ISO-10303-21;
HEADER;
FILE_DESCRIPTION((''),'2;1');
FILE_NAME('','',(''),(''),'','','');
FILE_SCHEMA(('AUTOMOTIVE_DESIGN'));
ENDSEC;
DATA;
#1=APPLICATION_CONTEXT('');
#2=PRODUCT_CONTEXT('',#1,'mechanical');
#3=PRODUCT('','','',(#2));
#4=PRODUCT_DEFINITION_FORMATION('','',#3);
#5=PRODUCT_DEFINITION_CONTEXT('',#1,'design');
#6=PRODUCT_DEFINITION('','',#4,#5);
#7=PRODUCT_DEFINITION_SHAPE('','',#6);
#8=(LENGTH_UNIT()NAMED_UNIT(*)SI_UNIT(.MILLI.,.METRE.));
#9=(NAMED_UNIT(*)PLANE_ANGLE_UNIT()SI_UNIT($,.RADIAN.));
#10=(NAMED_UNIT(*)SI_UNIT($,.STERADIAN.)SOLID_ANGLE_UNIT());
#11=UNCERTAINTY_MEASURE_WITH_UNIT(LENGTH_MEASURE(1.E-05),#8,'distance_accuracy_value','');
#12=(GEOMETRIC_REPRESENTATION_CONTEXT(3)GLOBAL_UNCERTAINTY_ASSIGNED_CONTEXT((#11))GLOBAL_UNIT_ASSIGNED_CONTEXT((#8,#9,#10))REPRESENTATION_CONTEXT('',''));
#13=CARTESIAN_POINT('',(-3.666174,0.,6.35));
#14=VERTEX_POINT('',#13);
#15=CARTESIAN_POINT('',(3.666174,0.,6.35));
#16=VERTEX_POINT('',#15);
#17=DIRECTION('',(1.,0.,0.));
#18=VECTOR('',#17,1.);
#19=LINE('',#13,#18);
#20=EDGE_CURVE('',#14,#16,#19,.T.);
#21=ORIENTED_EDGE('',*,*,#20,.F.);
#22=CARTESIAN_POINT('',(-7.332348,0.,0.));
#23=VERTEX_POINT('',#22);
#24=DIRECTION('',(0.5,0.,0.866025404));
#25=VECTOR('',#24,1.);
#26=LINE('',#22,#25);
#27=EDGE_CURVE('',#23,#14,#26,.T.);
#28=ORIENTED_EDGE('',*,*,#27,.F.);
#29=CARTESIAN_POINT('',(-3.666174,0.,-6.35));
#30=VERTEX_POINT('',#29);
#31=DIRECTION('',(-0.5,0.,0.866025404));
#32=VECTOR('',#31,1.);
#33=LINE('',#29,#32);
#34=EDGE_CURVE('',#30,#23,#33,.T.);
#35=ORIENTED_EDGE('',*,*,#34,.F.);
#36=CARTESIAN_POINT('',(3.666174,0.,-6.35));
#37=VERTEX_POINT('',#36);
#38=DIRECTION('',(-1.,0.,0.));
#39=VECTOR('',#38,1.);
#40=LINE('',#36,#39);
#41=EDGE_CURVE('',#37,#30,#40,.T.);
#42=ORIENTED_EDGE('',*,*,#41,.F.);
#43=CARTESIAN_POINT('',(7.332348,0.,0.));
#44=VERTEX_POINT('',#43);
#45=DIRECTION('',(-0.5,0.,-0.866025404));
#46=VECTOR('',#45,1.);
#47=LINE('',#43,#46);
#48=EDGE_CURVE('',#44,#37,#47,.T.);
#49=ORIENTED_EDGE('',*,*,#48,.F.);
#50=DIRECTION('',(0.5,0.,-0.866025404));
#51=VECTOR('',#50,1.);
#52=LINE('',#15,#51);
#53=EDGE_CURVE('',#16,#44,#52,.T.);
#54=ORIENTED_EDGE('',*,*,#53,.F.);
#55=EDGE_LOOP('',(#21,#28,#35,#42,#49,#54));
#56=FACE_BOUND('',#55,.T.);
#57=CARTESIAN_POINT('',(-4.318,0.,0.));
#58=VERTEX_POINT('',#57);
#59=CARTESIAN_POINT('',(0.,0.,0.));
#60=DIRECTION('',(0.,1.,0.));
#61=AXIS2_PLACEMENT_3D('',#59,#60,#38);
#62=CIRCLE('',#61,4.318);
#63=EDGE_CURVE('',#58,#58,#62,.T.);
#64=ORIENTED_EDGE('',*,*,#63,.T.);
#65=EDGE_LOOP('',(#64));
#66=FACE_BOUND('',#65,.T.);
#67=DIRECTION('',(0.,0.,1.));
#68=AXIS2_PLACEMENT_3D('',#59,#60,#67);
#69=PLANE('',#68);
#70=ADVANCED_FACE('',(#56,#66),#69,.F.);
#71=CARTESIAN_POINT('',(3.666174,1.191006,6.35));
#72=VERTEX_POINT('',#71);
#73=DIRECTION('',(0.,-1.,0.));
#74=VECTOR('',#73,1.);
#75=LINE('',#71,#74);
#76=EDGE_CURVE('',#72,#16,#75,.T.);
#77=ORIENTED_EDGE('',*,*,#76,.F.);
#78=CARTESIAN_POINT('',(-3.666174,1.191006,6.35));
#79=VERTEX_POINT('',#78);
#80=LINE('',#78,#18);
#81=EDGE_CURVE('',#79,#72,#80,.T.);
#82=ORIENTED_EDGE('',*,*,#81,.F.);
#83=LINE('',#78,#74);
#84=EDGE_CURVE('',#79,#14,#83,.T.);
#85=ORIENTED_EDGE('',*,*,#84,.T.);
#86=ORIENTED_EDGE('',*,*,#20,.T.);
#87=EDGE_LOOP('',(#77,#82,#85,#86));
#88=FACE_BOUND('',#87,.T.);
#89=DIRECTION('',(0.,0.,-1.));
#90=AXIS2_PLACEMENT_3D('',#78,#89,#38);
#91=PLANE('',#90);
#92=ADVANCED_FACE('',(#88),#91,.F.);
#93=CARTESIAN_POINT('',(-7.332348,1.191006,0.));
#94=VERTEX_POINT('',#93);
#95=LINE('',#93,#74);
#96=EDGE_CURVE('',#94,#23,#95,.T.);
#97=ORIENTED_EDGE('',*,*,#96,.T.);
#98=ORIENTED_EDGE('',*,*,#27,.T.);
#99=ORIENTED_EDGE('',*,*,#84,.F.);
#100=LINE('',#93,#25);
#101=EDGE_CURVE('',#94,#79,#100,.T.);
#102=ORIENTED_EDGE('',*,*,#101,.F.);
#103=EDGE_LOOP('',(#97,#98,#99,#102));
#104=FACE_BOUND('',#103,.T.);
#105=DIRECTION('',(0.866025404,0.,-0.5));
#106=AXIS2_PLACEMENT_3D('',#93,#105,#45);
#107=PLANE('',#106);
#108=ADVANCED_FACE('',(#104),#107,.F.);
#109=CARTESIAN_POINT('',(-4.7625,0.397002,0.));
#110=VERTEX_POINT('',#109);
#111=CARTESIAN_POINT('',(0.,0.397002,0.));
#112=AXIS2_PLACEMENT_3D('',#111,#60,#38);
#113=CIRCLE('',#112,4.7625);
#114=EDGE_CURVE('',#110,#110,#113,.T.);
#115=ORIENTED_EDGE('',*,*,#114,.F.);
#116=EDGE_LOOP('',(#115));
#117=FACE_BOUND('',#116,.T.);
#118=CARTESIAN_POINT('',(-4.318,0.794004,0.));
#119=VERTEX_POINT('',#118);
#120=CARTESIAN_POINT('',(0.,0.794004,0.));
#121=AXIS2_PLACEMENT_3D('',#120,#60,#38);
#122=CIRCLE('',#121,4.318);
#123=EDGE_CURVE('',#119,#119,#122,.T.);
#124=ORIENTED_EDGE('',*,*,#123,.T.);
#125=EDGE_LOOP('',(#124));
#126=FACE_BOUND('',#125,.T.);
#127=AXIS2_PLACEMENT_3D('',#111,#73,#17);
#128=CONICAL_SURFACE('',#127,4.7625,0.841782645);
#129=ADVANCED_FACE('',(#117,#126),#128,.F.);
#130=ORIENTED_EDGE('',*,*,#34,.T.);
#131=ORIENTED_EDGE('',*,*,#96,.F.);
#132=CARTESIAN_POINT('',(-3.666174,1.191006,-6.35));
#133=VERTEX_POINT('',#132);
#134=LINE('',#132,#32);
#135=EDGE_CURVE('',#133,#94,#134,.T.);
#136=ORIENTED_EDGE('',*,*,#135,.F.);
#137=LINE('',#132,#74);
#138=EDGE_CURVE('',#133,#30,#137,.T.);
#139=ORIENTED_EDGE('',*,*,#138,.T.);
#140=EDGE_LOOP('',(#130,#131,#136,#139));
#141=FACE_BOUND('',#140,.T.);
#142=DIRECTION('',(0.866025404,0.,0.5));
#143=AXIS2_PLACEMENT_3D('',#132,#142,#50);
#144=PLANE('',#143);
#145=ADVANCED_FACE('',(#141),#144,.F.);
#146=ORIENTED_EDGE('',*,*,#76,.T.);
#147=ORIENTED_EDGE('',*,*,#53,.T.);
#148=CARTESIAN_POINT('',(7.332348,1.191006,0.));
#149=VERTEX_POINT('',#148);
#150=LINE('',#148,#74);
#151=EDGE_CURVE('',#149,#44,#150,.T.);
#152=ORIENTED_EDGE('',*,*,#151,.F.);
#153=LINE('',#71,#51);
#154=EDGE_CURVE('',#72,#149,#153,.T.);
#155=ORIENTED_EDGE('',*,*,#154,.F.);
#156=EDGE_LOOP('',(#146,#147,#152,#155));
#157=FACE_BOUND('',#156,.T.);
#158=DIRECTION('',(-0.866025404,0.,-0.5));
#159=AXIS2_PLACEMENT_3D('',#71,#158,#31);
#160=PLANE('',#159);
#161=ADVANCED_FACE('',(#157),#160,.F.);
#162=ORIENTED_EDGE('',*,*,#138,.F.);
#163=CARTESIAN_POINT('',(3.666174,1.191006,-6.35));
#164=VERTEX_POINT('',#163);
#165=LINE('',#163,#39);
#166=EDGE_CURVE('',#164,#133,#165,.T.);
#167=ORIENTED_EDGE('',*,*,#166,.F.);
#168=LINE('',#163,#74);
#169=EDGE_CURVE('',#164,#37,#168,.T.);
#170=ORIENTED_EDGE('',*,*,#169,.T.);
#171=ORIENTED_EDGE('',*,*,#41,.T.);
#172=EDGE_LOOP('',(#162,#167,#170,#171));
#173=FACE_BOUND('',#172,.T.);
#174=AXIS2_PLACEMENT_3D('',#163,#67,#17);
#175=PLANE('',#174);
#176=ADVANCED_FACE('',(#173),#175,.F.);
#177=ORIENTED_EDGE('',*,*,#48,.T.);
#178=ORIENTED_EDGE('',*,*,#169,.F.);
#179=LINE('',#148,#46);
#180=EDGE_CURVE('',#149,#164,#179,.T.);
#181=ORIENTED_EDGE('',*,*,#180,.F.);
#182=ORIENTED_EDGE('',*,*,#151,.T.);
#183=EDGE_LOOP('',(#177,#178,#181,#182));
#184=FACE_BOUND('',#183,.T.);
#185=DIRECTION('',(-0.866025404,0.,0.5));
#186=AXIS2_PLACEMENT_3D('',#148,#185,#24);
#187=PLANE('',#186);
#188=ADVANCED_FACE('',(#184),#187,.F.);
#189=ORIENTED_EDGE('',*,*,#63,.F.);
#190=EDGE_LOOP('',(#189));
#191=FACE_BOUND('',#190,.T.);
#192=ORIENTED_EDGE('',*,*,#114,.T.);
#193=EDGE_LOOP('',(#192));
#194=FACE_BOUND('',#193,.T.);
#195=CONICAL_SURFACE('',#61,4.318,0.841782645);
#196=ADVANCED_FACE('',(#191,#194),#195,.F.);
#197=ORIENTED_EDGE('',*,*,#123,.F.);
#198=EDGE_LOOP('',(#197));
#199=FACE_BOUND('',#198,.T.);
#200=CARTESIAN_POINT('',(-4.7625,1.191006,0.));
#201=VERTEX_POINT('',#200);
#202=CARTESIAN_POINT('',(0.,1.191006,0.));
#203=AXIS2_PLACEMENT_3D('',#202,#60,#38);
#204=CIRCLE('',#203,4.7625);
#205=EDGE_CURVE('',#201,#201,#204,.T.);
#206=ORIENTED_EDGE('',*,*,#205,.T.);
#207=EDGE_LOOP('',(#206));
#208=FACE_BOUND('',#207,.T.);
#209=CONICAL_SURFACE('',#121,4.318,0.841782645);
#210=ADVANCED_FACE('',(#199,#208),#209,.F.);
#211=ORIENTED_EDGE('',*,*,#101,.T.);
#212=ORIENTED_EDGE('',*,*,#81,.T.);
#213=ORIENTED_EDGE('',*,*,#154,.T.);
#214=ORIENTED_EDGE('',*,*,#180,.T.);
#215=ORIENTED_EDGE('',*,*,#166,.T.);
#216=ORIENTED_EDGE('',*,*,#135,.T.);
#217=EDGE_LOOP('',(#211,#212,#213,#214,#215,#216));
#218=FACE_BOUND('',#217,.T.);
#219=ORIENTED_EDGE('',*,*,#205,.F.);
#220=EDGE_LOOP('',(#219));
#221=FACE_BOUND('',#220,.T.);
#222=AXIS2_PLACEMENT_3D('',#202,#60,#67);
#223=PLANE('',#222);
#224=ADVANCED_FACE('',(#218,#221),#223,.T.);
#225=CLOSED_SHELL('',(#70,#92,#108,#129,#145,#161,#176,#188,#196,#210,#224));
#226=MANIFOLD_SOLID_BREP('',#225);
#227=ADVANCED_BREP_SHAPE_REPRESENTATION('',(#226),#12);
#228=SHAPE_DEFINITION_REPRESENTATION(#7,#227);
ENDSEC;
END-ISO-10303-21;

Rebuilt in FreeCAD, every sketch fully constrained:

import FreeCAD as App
import Part
import Sketcher
Q = App.Units.Quantity

doc = App.newDocument("Part")
body = doc.addObject("PartDesign::Body", "Body")

# Sketch on XZ plane
sketch1 = doc.addObject("Sketcher::SketchObject", "Sketch")
body.addObject(sketch1)
sketch1.AttachmentSupport = (doc.XZ_Plane, [""])
sketch1.MapMode = "FlatFace"
sketch1.addGeometry(Part.LineSegment(App.Vector(7.332348, 0, 0), App.Vector(3.666174, -6.35, 0)), False)
sketch1.addGeometry(Part.LineSegment(App.Vector(3.666174, -6.35, 0), App.Vector(-3.666174, -6.35, 0)), False)
sketch1.addGeometry(Part.LineSegment(App.Vector(-3.666174, -6.35, 0), App.Vector(-7.332348, 0, 0)), False)
sketch1.addGeometry(Part.LineSegment(App.Vector(-7.332348, 0, 0), App.Vector(-3.666174, 6.35, 0)), False)
sketch1.addGeometry(Part.LineSegment(App.Vector(-3.666174, 6.35, 0), App.Vector(3.666174, 6.35, 0)), False)
sketch1.addGeometry(Part.LineSegment(App.Vector(3.666174, 6.35, 0), App.Vector(7.332348, 0, 0)), False)
sketch1.addGeometry(Part.Circle(App.Vector(0, 0, 0), App.Vector(0, 0, 1), 4.318), False)
sketch1.addConstraint(Sketcher.Constraint("Coincident", 0, 2, 1, 1))
sketch1.addConstraint(Sketcher.Constraint("Coincident", 1, 2, 2, 1))
sketch1.addConstraint(Sketcher.Constraint("Coincident", 2, 2, 3, 1))
sketch1.addConstraint(Sketcher.Constraint("Coincident", 3, 2, 4, 1))
sketch1.addConstraint(Sketcher.Constraint("Coincident", 4, 2, 5, 1))
sketch1.addConstraint(Sketcher.Constraint("Coincident", 5, 2, 0, 1))
sketch1.addConstraint(Sketcher.Constraint("Horizontal", 1))
sketch1.addConstraint(Sketcher.Constraint("Horizontal", 4))
sketch1.addConstraint(Sketcher.Constraint("Coincident", 6, 3, -1, 1))
sketch1.addConstraint(Sketcher.Constraint("Symmetric", 0, 2, 3, 2, -1, 1))
sketch1.addConstraint(Sketcher.Constraint("Symmetric", 2, 2, 5, 2, -1, 1))
sketch1.addConstraint(Sketcher.Constraint("PointOnObject", 2, 2, -1))
sketch1.addConstraint(Sketcher.Constraint("Parallel", 2, 5))
sketch1.addConstraint(Sketcher.Constraint("Vertical", 1, 2, 3, 2))
sketch1.addConstraint(Sketcher.Constraint("Diameter", 6, Q("0.34 in")))
sketch1.addConstraint(Sketcher.Constraint("Angle", 0, Q("-120 deg")))
sketch1.addConstraint(Sketcher.Constraint("DistanceY", 1, 2, 3, 2, Q("0.5 in")))
sketch1.addConstraint(Sketcher.Constraint("DistanceX", 1, 2, 1, 1, 7.332348))
pad1 = doc.addObject("PartDesign::Pad", "Pad")
body.addObject(pad1)
pad1.Profile = sketch1
pad1.Length = 1.191006
pad1.Reversed = True

# Sketch on XY plane
sketch2 = doc.addObject("Sketcher::SketchObject", "Sketch001")
body.addObject(sketch2)
sketch2.AttachmentSupport = (doc.XY_Plane, [""])
sketch2.MapMode = "FlatFace"
sketch2.addGeometry(Part.LineSegment(App.Vector(4.318, 0.794004, 0), App.Vector(4.7625, 1.191006, 0)), False)
sketch2.addGeometry(Part.LineSegment(App.Vector(4.7625, 1.191006, 0), App.Vector(0, 1.191006, 0)), False)
sketch2.addGeometry(Part.LineSegment(App.Vector(0, 1.191006, 0), App.Vector(0, 0, 0)), False)
sketch2.addGeometry(Part.LineSegment(App.Vector(0, 0, 0), App.Vector(4.318, 0, 0)), False)
sketch2.addGeometry(Part.LineSegment(App.Vector(4.318, 0, 0), App.Vector(4.7625, 0.397002, 0)), False)
sketch2.addGeometry(Part.LineSegment(App.Vector(4.7625, 0.397002, 0), App.Vector(4.318, 0.794004, 0)), False)
sketch2.addConstraint(Sketcher.Constraint("Coincident", 0, 2, 1, 1))
sketch2.addConstraint(Sketcher.Constraint("Coincident", 1, 2, 2, 1))
sketch2.addConstraint(Sketcher.Constraint("Coincident", 2, 2, 3, 1))
sketch2.addConstraint(Sketcher.Constraint("Coincident", 3, 2, 4, 1))
sketch2.addConstraint(Sketcher.Constraint("Coincident", 4, 2, 5, 1))
sketch2.addConstraint(Sketcher.Constraint("Coincident", 5, 2, 0, 1))
sketch2.addConstraint(Sketcher.Constraint("Horizontal", 1))
sketch2.addConstraint(Sketcher.Constraint("Vertical", 2))
sketch2.addConstraint(Sketcher.Constraint("Horizontal", 3))
sketch2.addConstraint(Sketcher.Constraint("Coincident", 2, 2, -1, 1))
sketch2.addConstraint(Sketcher.Constraint("Parallel", 0, 4))
sketch2.addConstraint(Sketcher.Constraint("Vertical", 0, 2, 4, 2))
sketch2.addConstraint(Sketcher.Constraint("Vertical", 3, 2, 5, 2))
sketch2.addConstraint(Sketcher.Constraint("Equal", 4, 5))
sketch2.addConstraint(Sketcher.Constraint("DistanceX", 3, 1, 3, 2, Q("0.17 in")))
sketch2.addConstraint(Sketcher.Constraint("DistanceX", 1, 2, 1, 1, Q("0.1875 in")))
sketch2.addConstraint(Sketcher.Constraint("DistanceY", 5, 2, 0, 2, 0.397002))
groove = doc.addObject("PartDesign::Groove", "Groove")
body.addObject(groove)
groove.Profile = sketch2
groove.ReferenceAxis = (sketch2, ["V_Axis"])
groove.Angle = 360

doc.recompute()
